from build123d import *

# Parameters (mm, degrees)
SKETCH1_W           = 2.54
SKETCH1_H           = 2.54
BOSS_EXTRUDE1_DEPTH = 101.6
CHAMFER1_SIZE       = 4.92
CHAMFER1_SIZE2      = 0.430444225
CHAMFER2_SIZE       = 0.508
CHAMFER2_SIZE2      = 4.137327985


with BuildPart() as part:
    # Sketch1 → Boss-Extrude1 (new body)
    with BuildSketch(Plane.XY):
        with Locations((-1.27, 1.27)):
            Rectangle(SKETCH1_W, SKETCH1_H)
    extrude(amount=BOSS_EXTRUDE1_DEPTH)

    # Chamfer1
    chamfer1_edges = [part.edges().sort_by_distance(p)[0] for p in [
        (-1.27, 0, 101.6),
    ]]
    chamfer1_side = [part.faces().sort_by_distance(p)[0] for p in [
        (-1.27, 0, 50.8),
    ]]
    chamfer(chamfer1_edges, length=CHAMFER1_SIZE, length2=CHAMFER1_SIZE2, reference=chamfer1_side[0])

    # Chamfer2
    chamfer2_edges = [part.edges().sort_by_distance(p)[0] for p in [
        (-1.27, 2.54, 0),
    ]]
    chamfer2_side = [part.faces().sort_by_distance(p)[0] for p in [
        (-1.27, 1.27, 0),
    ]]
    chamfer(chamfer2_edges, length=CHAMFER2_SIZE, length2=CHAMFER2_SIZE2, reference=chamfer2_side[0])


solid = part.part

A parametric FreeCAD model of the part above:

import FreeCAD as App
import Part
import Sketcher
from FreeCAD import Vector
Q = App.Units.Quantity


def edges_at(feature, points):
    """Names of the edges that pass closest to the given points."""
    edges = feature.Shape.Edges
    near = lambda p: min(range(len(edges)), key=lambda i: edges[i].distToShape(Part.Vertex(*p))[0])
    return sorted({f"Edge{near(p) + 1}" for p in points})


def add_polygon(sketch, points):
    """Adds a closed chain of lines whose ends are joined by coincident constraints."""
    first, n = sketch.GeometryCount, len(points)
    for a, b in zip(points, points[1:] + points[:1]):
        sketch.addGeometry(Part.LineSegment(App.Vector(*a, 0), App.Vector(*b, 0)), False)
    for i in range(n):
        sketch.addConstraint(Sketcher.Constraint("Coincident", first + i, 2, first + (i + 1) % n, 1))

doc = App.newDocument("Part")
params = doc.addObject("Spreadsheet::Sheet", "Params")
for row, (alias, value) in enumerate([
    ("sketch1_width", "0.1 in"),
    ("pad1_length", "4 in"),
    ("chamfer_size", "4.92 mm"),
    ("chamfer_size2", "0.430444 mm"),
    ("chamfer2_size", "0.02 in"),
    ("chamfer2_size2", "4.137328 mm"),
], start=1):
    params.set(f"A{row}", alias)
    params.set(f"B{row}", "=" + value)
    params.setAlias(f"B{row}", alias)

body = doc.addObject("PartDesign::Body", "Body")

# Sketch on XY plane
sketch1 = body.newObject("Sketcher::SketchObject", "Sketch")
sketch1.AttachmentSupport = (doc.getObject("XY_Plane"), [""])
sketch1.MapMode = "FlatFace"
add_polygon(sketch1, [(-2.54, 2.54), (-2.54, 0), (0, 0), (0, 2.54)])  # lines 0-3
sketch1.addConstraint([
    Sketcher.Constraint("Vertical", 0),
    Sketcher.Constraint("Horizontal", 1),
    Sketcher.Constraint("Vertical", 2),
    Sketcher.Constraint("Horizontal", 3),
    Sketcher.Constraint("Coincident", 1, 2, -1, 1),
    Sketcher.Constraint("Equal", 3, 0),
    Sketcher.Constraint("DistanceX", 1, 1, 1, 2, Q("0.1 in")),
])
sketch1.setExpression("Constraints[10]", "Params.sketch1_width")
pad1 = body.newObject("PartDesign::Pad", "Pad")
pad1.Profile = sketch1
pad1.setExpression("Length", "Params.pad1_length")
doc.recompute()

chamfer = body.newObject("PartDesign::Chamfer", "Chamfer")
chamfer.Base = (pad1, edges_at(pad1, [(-1.27, 0, 101.6)]))
chamfer.ChamferType = "Two distances"
chamfer.setExpression("Size", "Params.chamfer_size")
chamfer.setExpression("Size2", "Params.chamfer_size2")
doc.recompute()

chamfer2 = body.newObject("PartDesign::Chamfer", "Chamfer001")
chamfer2.Base = (chamfer, edges_at(chamfer, [(-1.27, 2.54, 0)]))
chamfer2.ChamferType = "Two distances"
chamfer2.setExpression("Size", "Params.chamfer2_size")
chamfer2.setExpression("Size2", "Params.chamfer2_size2")

doc.recompute()
